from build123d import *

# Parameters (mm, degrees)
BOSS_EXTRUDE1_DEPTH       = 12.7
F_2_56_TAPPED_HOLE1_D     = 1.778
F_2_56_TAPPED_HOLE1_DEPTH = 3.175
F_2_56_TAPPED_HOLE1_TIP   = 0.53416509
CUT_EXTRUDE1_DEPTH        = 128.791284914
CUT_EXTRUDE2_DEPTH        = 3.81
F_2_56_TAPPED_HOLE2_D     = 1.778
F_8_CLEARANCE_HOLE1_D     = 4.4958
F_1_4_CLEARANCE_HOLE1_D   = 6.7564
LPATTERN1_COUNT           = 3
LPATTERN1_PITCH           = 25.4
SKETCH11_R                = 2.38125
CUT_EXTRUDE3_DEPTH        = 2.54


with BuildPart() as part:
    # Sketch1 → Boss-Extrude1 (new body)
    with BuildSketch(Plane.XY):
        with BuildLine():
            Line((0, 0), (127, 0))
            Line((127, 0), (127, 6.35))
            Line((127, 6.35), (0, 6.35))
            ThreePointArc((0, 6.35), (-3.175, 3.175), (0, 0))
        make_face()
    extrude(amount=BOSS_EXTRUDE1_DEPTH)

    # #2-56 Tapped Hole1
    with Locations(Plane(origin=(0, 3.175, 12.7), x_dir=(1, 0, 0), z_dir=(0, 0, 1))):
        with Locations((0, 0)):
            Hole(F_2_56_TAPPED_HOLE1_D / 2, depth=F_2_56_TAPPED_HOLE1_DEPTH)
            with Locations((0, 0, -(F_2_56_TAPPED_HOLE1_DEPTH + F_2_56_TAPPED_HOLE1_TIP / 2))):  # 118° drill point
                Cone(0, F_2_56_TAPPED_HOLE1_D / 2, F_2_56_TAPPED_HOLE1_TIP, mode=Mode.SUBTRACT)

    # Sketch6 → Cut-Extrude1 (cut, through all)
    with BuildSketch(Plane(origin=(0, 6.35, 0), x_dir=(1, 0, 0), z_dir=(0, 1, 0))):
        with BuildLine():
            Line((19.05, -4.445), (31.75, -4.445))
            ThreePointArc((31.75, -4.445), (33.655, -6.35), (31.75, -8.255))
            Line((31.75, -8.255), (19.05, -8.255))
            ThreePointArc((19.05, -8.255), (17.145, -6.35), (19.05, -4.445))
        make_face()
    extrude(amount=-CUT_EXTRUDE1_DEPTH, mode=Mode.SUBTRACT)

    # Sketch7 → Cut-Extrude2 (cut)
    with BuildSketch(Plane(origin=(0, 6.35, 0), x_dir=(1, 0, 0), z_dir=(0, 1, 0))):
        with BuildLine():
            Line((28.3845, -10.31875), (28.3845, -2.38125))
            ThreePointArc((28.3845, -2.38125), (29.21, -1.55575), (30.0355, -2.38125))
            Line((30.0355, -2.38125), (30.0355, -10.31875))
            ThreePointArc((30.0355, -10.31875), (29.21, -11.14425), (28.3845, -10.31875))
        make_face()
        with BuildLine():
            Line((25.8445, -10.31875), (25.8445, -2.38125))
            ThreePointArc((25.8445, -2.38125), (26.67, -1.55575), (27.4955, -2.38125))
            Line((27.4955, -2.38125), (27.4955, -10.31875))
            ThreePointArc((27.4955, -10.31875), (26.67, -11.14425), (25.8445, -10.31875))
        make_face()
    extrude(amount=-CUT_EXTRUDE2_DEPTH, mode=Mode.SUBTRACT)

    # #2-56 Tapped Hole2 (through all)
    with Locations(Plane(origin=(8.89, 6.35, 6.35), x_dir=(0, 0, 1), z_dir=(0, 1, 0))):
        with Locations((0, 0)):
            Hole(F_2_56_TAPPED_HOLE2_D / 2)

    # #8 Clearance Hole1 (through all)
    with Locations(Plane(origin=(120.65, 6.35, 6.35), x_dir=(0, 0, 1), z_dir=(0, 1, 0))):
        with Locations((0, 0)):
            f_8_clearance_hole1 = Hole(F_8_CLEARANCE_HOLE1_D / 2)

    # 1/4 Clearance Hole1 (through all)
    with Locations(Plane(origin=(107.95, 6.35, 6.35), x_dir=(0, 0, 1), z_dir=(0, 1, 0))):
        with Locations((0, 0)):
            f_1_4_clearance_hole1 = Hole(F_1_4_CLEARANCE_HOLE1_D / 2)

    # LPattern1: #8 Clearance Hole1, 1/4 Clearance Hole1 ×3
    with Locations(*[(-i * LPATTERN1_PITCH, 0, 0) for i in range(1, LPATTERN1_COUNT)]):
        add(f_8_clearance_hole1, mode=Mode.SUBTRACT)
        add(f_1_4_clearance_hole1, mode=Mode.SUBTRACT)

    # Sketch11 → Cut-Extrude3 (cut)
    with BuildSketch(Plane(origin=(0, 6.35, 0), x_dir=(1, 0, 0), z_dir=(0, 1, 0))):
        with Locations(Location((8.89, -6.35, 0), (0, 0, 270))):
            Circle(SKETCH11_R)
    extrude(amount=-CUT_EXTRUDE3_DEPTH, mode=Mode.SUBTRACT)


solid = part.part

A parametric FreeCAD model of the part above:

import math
import FreeCAD as App
import Part
import Sketcher

V = App.Vector
Q = App.Units.Quantity

doc = App.newDocument("Part")
body = doc.addObject("PartDesign::Body", "Body")

sketch1 = body.newObject("Sketcher::SketchObject", "Sketch")
sketch1.AttachmentSupport = (doc.getObject("XY_Plane"), [""])
sketch1.MapMode = "FlatFace"
sketch1.addGeometry([
    Part.LineSegment(V(0, 0, 0), V(127, 0, 0)),
    Part.LineSegment(V(127, 0, 0), V(127, 6.3, 0)),
    Part.LineSegment(V(127, 6.3, 0), V(0, 6.3, 0)),
    Part.ArcOfCircle(Part.Circle(V(0, 3.2, 0), V(0, 0, 1), 3.2), math.radians(90), math.radians(270)),
], False)
sketch1.addConstraint([
    Sketcher.Constraint("Coincident", 0, 2, 1, 1),
    Sketcher.Constraint("Coincident", 1, 2, 2, 1),
    Sketcher.Constraint("Tangent", 2, 2, 3, 1),
    Sketcher.Constraint("Tangent", 3, 2, 0, 1),
    Sketcher.Constraint("Horizontal", 0),
    Sketcher.Constraint("Vertical", 1),
    Sketcher.Constraint("Horizontal", 2),
    Sketcher.Constraint("Coincident", 3, 2, -1, 1),
    Sketcher.Constraint("DistanceX", 0, 1, 0, 2, Q("5 in")),
    Sketcher.Constraint("Radius", 3, Q("0.125 in")),
])
pad1 = body.newObject("PartDesign::Pad", "Pad")
pad1.Profile = sketch1
pad1.Length = Q("0.5 in")

sketch2 = body.newObject("Sketcher::SketchObject", "Sketch001")
sketch2.AttachmentSupport = (doc.getObject("XY_Plane"), [""])
sketch2.MapMode = "FlatFace"
sketch2.AttachmentOffset = App.Placement(V(0, 0, 0.5 * 25.4), App.Rotation())
sketch2.addGeometry(Part.Circle(V(0, 3.2, 0), V(0, 0, 1), 0.9), False)
sketch2.addConstraint([
    Sketcher.Constraint("PointOnObject", 0, 3, -2),
    Sketcher.Constraint("Diameter", 0, Q("0.07 in")),
    Sketcher.Constraint("DistanceY", -1, 1, 0, 3, Q("0.125 in")),
])
doc.recompute()
hole = body.newObject("PartDesign::Hole", "Hole")
hole.Profile = sketch2
hole.ThreadType = "None"
hole.Diameter = Q("0.07 in")
hole.DepthType = "Dimension"
hole.Depth = Q("0.125 in")
hole.DrillPoint = "Angled"
hole.DrillPointAngle = 118

sketch3 = body.newObject("Sketcher::SketchObject", "Sketch002")
sketch3.AttachmentSupport = (doc.getObject("XZ_Plane"), [""])
sketch3.MapMode = "FlatFace"
sketch3.AttachmentOffset = App.Placement(V(0, 0, -0.25 * 25.4), App.Rotation())
sketch3.addGeometry([
    Part.LineSegment(V(31.8, 4.4, 0), V(19.1, 4.4, 0)),
    Part.ArcOfCircle(Part.Circle(V(19.1, 6.3, 0), V(0, 0, 1), 1.9), math.radians(90), math.radians(270)),
    Part.LineSegment(V(19.1, 8.3, 0), V(31.8, 8.3, 0)),
    Part.ArcOfCircle(Part.Circle(V(31.8, 6.3, 0), V(0, 0, 1), 1.9), math.radians(-90), math.radians(90)),
], False)
sketch3.addConstraint([
    Sketcher.Constraint("Tangent", 0, 2, 1, 2),
    Sketcher.Constraint("Tangent", 1, 1, 2, 1),
    Sketcher.Constraint("Tangent", 2, 2, 3, 2),
    Sketcher.Constraint("Tangent", 3, 1, 0, 1),
    Sketcher.Constraint("Horizontal", 0),
    Sketcher.Constraint("Horizontal", 2),
    Sketcher.Constraint("DistanceX", 0, 2, 0, 1, Q("0.5 in")),
    Sketcher.Constraint("Radius", 1, Q("0.075 in")),
    Sketcher.Constraint("DistanceX", -1, 1, 1, 3, Q("0.75 in")),
    Sketcher.Constraint("DistanceY", -1, 1, 1, 3, Q("0.25 in")),
])
pocket1 = body.newObject("PartDesign::Pocket", "Pocket")
pocket1.Profile = sketch3
pocket1.Type = "ThroughAll"
pocket1.Reversed = True

sketch4 = body.newObject("Sketcher::SketchObject", "Sketch003")
sketch4.AttachmentSupport = (doc.getObject("XZ_Plane"), [""])
sketch4.MapMode = "FlatFace"
sketch4.AttachmentOffset = App.Placement(V(0, 0, -0.25 * 25.4), App.Rotation())
sketch4.addGeometry([
    Part.LineSegment(V(28.4, 2.4, 0), V(28.4, 10.3, 0)),
    Part.ArcOfCircle(Part.Circle(V(29.2, 10.3, 0), V(0, 0, 1), 0.8), math.radians(0), math.radians(180)),
    Part.LineSegment(V(30, 10.3, 0), V(30, 2.4, 0)),
    Part.ArcOfCircle(Part.Circle(V(29.2, 2.4, 0), V(0, 0, 1), 0.8), math.radians(180), math.radians(360)),
    Part.LineSegment(V(25.8, 2.4, 0), V(25.8, 10.3, 0)),
    Part.ArcOfCircle(Part.Circle(V(26.7, 10.3, 0), V(0, 0, 1), 0.8), math.radians(0), math.radians(180)),
    Part.LineSegment(V(27.5, 10.3, 0), V(27.5, 2.4, 0)),
    Part.ArcOfCircle(Part.Circle(V(26.7, 2.4, 0), V(0, 0, 1), 0.8), math.radians(180), math.radians(360)),
], False)
sketch4.addConstraint([
    Sketcher.Constraint("Tangent", 0, 2, 1, 2),
    Sketcher.Constraint("Tangent", 1, 1, 2, 1),
    Sketcher.Constraint("Tangent", 2, 2, 3, 2),
    Sketcher.Constraint("Tangent", 3, 1, 0, 1),
    Sketcher.Constraint("Tangent", 4, 2, 5, 2),
    Sketcher.Constraint("Tangent", 5, 1, 6, 1),
    Sketcher.Constraint("Tangent", 6, 2, 7, 2),
    Sketcher.Constraint("Tangent", 7, 1, 4, 1),
    Sketcher.Constraint("Vertical", 0),
    Sketcher.Constraint("Vertical", 2),
    Sketcher.Constraint("Vertical", 4),
    Sketcher.Constraint("Vertical", 6),
    Sketcher.Constraint("Equal", 3, 5),
    Sketcher.Constraint("Horizontal", 1, 3, 5, 3),
    Sketcher.Constraint("Horizontal", 3, 3, 7, 3),
    Sketcher.Constraint("Radius", 1, Q("0.0325 in")),
    Sketcher.Constraint("DistanceX", 5, 3, 1, 3, Q("0.1 in")),
    Sketcher.Constraint("DistanceY", 0, 1, 0, 2, Q("0.3125 in")),
    Sketcher.Constraint("DistanceX", -1, 1, 1, 3, Q("1.15 in")),
    Sketcher.Constraint("DistanceY", -1, 1, 1, 3, Q("0.40625 in")),
])
pocket2 = body.newObject("PartDesign::Pocket", "Pocket001")
pocket2.Profile = sketch4
pocket2.Length = Q("0.15 in")
pocket2.Reversed = True

sketch5 = body.newObject("Sketcher::SketchObject", "Sketch004")
sketch5.AttachmentSupport = (doc.getObject("XZ_Plane"), [""])
sketch5.MapMode = "FlatFace"
sketch5.AttachmentOffset = App.Placement(V(0, 0, -0.25 * 25.4), App.Rotation())
sketch5.addGeometry(Part.Circle(V(8.9, 6.3, 0), V(0, 0, 1), 0.9), False)
sketch5.addConstraint([
    Sketcher.Constraint("Diameter", 0, Q("0.07 in")),
    Sketcher.Constraint("DistanceX", -1, 1, 0, 3, Q("0.35 in")),
    Sketcher.Constraint("DistanceY", -1, 1, 0, 3, Q("0.25 in")),
])
doc.recompute()
hole2 = body.newObject("PartDesign::Hole", "Hole001")
hole2.Profile = sketch5
hole2.ThreadType = "None"
hole2.Diameter = Q("0.07 in")
hole2.DepthType = "ThroughAll"
hole2.Reversed = True

sketch6 = body.newObject("Sketcher::SketchObject", "Sketch005")
sketch6.AttachmentSupport = (doc.getObject("XZ_Plane"), [""])
sketch6.MapMode = "FlatFace"
sketch6.AttachmentOffset = App.Placement(V(0, 0, -0.25 * 25.4), App.Rotation())
sketch6.addGeometry(Part.Circle(V(120.7, 6.3, 0), V(0, 0, 1), 2.2), False)
sketch6.addConstraint([
    Sketcher.Constraint("Diameter", 0, Q("0.177 in")),
    Sketcher.Constraint("DistanceX", -1, 1, 0, 3, Q("4.75 in")),
    Sketcher.Constraint("DistanceY", -1, 1, 0, 3, Q("0.25 in")),
])
doc.recompute()
hole3 = body.newObject("PartDesign::Hole", "Hole002")
hole3.Profile = sketch6
hole3.ThreadType = "None"
hole3.Diameter = Q("0.177 in")
hole3.DepthType = "ThroughAll"
hole3.Reversed = True

sketch7 = body.newObject("Sketcher::SketchObject", "Sketch006")
sketch7.AttachmentSupport = (doc.getObject("XZ_Plane"), [""])
sketch7.MapMode = "FlatFace"
sketch7.AttachmentOffset = App.Placement(V(0, 0, -0.25 * 25.4), App.Rotation())
sketch7.addGeometry(Part.Circle(V(108, 6.3, 0), V(0, 0, 1), 3.4), False)
sketch7.addConstraint([
    Sketcher.Constraint("Diameter", 0, Q("0.266 in")),
    Sketcher.Constraint("DistanceX", -1, 1, 0, 3, Q("4.25 in")),
    Sketcher.Constraint("DistanceY", -1, 1, 0, 3, Q("0.25 in")),
])
doc.recompute()
hole4 = body.newObject("PartDesign::Hole", "Hole003")
hole4.Profile = sketch7
hole4.ThreadType = "None"
hole4.Diameter = Q("0.266 in")
hole4.DepthType = "ThroughAll"
hole4.Reversed = True
doc.recompute()

linearpattern = body.newObject("PartDesign::LinearPattern", "LinearPattern")
linearpattern.Originals = [hole3, hole4]
linearpattern.Direction = (doc.getObject("X_Axis"), [""])
linearpattern.Mode = "offset"
linearpattern.Offset = Q("1 in")
linearpattern.Occurrences = 3
linearpattern.Reversed = True
body.Tip = linearpattern

sketch8 = body.newObject("Sketcher::SketchObject", "Sketch007")
sketch8.AttachmentSupport = (doc.getObject("XZ_Plane"), [""])
sketch8.MapMode = "FlatFace"
sketch8.AttachmentOffset = App.Placement(V(0, 0, -0.25 * 25.4), App.Rotation())
sketch8.addGeometry(Part.Circle(V(8.9, 6.3, 0), V(0, 0, 1), 2.4), False)
sketch8.addConstraint([
    Sketcher.Constraint("Diameter", 0, Q("0.1875 in")),
    Sketcher.Constraint("DistanceX", -1, 1, 0, 3, Q("0.35 in")),
    Sketcher.Constraint("DistanceY", -1, 1, 0, 3, Q("0.25 in")),
])
pocket3 = body.newObject("PartDesign::Pocket", "Pocket002")
pocket3.Profile = sketch8
pocket3.Length = Q("0.1 in")
pocket3.Reversed = True

doc.recompute()
